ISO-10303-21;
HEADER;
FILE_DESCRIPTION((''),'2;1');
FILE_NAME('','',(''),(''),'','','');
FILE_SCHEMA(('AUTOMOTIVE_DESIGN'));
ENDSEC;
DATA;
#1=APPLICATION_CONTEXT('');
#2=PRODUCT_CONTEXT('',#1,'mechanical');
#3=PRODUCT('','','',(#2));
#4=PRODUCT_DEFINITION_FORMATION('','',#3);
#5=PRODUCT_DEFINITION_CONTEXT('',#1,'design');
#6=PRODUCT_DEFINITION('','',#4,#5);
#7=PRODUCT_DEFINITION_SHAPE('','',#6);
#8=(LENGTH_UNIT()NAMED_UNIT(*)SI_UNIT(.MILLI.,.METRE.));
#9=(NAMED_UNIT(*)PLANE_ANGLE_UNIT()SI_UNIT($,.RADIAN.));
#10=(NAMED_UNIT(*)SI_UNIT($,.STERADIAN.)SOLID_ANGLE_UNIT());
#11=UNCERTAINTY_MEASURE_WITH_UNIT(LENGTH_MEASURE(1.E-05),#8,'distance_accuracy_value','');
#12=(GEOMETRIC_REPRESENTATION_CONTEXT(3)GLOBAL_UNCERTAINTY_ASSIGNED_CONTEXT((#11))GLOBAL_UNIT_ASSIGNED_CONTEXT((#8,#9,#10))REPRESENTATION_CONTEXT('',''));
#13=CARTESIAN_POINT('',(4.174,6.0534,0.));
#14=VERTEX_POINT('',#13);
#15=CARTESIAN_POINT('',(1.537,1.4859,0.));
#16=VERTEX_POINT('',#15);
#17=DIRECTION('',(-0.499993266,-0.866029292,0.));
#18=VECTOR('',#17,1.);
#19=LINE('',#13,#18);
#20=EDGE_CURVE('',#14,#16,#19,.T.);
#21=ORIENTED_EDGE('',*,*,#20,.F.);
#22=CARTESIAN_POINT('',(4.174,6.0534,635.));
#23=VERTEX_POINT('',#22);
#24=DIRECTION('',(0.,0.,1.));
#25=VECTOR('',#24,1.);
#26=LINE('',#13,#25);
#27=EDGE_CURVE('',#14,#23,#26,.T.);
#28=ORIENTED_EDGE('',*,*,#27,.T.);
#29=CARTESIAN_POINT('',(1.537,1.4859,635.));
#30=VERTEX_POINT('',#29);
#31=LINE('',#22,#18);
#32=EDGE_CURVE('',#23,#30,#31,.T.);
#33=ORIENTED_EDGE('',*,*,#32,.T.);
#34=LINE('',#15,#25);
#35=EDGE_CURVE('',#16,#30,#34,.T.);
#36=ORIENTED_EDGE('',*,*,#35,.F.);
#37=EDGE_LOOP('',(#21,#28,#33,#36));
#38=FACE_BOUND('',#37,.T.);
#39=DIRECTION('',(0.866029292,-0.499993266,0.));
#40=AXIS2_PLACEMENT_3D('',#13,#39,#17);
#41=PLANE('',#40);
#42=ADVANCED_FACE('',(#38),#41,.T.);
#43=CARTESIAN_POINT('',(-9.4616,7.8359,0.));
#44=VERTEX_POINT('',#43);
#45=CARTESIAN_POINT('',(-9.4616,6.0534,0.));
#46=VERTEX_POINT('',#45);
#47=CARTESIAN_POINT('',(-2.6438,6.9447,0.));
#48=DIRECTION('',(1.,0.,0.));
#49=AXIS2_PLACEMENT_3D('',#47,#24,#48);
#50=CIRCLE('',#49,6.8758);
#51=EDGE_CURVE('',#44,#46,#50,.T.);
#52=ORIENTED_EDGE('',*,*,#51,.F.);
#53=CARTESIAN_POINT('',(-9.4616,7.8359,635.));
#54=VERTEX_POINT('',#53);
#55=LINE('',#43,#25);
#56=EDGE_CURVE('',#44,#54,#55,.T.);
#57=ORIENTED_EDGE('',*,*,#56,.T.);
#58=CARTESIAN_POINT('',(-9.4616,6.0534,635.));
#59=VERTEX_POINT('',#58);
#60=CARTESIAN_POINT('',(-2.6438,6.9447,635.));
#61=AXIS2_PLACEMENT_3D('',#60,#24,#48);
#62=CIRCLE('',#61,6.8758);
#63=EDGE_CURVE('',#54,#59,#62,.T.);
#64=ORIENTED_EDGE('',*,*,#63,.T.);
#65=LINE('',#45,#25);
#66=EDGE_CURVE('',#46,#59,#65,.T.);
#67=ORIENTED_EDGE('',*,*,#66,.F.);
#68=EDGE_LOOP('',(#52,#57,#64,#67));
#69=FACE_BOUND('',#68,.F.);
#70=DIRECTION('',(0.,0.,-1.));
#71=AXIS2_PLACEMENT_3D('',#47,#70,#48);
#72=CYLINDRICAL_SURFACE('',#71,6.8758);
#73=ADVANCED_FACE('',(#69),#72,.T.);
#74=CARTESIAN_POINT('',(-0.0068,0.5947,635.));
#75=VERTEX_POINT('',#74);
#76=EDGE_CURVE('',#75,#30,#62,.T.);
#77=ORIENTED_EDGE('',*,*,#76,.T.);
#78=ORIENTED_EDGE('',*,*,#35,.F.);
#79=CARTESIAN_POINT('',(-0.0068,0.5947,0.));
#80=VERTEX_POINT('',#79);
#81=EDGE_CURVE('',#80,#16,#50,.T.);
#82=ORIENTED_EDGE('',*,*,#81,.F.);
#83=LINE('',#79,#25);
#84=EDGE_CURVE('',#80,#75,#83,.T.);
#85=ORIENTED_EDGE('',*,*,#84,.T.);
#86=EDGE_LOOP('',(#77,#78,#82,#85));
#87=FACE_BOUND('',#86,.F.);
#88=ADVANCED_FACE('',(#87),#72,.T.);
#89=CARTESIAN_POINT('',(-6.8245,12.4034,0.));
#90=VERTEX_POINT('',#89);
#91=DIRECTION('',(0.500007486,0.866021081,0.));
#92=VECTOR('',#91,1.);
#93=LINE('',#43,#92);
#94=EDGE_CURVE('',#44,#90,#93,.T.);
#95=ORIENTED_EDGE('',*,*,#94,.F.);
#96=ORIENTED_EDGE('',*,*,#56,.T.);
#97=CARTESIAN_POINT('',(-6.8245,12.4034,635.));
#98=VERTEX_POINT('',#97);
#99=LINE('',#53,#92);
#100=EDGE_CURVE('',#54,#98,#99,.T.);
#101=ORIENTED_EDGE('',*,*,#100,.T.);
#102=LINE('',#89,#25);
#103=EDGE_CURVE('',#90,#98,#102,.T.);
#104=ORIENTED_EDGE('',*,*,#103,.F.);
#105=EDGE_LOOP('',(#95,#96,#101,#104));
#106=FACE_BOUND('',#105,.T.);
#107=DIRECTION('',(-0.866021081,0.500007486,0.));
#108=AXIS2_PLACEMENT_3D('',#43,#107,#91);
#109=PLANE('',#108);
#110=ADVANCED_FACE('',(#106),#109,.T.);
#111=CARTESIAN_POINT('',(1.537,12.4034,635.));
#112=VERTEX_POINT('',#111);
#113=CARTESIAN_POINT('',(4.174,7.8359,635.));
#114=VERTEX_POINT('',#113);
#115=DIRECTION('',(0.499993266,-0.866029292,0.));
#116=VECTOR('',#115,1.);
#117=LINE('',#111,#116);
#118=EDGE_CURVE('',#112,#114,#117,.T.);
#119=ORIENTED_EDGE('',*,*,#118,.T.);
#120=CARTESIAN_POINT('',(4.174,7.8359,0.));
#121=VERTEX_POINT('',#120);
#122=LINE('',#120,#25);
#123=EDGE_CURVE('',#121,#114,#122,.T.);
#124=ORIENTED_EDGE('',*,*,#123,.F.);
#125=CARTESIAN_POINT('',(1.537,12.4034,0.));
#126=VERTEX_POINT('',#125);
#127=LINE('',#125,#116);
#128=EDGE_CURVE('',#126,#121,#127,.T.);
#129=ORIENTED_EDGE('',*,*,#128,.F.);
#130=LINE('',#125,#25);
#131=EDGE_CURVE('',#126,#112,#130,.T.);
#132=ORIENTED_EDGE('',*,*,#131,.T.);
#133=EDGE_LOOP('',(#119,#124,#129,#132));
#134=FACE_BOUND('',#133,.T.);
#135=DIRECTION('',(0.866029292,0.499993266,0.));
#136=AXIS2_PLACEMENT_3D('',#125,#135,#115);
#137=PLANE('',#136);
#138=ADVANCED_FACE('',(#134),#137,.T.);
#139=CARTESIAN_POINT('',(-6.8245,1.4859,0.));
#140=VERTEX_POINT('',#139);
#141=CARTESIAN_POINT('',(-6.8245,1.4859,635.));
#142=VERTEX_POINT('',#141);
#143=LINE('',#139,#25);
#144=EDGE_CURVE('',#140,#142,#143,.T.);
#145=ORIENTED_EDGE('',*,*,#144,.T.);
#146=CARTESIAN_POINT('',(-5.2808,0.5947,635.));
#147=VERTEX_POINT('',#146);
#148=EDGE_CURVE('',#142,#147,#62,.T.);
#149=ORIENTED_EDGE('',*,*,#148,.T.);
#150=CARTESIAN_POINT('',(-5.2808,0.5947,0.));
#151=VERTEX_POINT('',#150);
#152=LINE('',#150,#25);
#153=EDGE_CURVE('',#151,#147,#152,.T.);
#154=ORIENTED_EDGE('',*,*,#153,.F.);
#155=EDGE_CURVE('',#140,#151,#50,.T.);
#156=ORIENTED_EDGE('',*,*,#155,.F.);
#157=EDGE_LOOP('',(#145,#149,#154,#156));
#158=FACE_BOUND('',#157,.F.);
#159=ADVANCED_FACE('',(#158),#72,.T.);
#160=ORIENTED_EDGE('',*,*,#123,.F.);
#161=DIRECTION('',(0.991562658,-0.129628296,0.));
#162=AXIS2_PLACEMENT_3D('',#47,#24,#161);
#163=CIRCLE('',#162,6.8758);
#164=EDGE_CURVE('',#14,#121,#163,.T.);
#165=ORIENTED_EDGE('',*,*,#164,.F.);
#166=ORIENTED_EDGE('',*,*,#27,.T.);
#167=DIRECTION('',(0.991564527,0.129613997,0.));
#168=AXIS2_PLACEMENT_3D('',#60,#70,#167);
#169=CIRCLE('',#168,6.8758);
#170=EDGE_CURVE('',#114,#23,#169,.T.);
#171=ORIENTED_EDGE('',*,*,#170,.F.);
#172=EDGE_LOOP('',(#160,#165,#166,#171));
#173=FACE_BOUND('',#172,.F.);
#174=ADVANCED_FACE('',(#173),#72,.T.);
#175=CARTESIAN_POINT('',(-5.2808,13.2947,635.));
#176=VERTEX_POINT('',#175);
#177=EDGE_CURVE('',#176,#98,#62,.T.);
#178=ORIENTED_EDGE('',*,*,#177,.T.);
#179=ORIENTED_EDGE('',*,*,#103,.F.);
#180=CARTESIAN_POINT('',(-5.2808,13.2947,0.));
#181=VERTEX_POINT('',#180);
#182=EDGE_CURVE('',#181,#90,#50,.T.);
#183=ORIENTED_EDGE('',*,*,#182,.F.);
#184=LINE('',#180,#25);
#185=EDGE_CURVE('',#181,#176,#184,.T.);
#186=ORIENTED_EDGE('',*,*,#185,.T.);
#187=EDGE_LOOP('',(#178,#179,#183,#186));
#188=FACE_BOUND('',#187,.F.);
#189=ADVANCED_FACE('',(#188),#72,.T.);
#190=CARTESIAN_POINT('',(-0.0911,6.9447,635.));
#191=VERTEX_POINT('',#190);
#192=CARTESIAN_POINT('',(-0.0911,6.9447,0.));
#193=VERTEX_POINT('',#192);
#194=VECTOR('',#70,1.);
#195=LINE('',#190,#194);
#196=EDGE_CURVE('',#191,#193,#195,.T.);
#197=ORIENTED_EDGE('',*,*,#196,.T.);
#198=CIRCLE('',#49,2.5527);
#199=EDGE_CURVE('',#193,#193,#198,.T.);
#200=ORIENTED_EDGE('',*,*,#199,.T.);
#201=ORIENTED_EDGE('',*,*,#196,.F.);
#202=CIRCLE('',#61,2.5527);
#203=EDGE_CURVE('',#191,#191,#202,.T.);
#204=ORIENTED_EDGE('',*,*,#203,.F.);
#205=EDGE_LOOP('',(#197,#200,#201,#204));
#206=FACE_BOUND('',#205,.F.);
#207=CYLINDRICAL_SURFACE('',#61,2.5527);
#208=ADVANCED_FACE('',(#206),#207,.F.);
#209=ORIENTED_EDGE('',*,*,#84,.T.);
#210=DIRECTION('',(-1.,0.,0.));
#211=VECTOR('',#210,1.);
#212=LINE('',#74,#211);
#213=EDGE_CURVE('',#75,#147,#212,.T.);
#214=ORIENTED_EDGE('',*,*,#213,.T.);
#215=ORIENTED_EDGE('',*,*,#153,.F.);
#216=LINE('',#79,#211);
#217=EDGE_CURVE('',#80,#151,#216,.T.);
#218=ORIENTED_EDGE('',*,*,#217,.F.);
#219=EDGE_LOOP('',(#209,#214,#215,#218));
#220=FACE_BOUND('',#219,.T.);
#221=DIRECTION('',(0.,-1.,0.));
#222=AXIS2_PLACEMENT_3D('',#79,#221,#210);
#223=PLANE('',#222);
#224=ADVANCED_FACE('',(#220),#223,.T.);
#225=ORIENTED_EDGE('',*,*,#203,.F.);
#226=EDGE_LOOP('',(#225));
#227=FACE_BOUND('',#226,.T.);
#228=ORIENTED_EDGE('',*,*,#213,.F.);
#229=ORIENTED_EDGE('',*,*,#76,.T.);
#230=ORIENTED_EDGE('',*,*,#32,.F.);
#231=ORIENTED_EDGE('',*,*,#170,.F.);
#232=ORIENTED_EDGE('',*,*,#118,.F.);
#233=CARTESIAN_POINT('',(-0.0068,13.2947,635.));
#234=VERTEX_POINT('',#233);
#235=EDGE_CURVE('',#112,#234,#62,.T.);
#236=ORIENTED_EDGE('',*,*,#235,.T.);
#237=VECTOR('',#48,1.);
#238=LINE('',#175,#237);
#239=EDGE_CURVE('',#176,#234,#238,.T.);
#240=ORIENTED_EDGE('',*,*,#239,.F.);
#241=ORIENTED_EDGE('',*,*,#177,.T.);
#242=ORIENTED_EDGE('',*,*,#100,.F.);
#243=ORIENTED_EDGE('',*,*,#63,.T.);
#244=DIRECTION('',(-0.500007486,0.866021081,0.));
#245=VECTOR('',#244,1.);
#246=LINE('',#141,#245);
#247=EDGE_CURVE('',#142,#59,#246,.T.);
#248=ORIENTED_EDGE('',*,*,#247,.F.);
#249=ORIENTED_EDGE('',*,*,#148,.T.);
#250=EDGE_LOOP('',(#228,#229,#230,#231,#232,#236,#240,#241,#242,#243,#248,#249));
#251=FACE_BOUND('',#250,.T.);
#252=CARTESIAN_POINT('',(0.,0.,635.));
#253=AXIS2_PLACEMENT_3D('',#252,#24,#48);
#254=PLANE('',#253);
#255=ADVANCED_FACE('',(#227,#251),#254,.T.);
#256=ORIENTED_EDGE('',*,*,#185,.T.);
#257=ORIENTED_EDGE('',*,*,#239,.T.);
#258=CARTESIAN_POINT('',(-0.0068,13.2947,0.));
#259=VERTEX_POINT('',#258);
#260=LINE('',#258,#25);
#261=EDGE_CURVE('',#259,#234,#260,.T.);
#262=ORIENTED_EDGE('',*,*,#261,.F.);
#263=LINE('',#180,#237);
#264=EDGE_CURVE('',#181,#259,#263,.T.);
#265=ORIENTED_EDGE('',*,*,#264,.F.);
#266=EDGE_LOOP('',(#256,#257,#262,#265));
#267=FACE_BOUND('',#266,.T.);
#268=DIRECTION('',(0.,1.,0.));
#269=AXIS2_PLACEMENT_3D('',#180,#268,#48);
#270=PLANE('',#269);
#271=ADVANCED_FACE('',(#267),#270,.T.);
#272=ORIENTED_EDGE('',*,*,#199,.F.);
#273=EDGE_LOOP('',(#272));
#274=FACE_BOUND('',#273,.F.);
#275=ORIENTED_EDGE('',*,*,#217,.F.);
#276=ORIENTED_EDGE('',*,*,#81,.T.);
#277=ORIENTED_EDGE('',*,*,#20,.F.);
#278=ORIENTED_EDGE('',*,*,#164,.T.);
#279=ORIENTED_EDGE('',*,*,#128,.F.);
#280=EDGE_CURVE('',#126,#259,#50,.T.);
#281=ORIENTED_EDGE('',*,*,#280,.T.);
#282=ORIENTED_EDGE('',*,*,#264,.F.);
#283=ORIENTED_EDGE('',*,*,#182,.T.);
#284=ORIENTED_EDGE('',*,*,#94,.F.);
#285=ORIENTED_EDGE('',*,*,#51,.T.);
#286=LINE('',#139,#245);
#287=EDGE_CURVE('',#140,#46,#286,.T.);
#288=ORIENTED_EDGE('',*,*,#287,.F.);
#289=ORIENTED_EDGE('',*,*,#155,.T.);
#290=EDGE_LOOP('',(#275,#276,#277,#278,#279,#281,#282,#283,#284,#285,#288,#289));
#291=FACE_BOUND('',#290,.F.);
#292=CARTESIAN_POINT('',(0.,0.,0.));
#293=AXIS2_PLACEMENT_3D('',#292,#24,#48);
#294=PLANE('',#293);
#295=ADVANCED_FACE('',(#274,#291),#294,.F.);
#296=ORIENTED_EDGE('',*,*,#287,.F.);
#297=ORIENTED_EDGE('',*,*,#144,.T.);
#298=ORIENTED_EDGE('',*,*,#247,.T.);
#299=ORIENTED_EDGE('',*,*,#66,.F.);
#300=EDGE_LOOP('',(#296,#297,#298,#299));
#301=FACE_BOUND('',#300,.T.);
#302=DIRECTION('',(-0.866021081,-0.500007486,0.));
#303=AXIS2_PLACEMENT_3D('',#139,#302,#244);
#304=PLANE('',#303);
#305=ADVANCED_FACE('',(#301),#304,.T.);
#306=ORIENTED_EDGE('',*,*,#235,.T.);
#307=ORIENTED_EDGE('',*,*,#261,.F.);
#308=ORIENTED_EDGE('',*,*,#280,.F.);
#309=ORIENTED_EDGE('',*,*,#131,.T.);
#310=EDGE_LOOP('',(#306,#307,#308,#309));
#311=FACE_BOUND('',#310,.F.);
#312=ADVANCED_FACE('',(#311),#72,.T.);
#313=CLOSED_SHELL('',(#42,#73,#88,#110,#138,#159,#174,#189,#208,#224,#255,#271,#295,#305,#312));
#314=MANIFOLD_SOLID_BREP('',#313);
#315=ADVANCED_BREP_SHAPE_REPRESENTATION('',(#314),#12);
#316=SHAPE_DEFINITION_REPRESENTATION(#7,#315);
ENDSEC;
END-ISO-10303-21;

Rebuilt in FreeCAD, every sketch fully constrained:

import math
import FreeCAD as App
import Part
import Sketcher

V = App.Vector
Q = App.Units.Quantity

doc = App.newDocument("Part")
body = doc.addObject("PartDesign::Body", "Body")

sketch1 = doc.addObject("Sketcher::SketchObject", "Sketch")
body.addObject(sketch1)
sketch1.AttachmentSupport = (doc.XY_Plane, [""])
sketch1.MapMode = "FlatFace"
sketch1.addGeometry(Part.ArcOfCircle(Part.Circle(V(-2.6, 6.9, 0), V(0, 0, 1), 6.9), math.radians(-7.45), math.radians(7.45)), False)
sketch1.addGeometry(Part.LineSegment(V(4.2, 7.8, 0), V(1.5, 12.4, 0)), False)
sketch1.addGeometry(Part.ArcOfCircle(Part.Circle(V(-2.6, 6.9, 0), V(0, 0, 1), 6.9), math.radians(52.55), math.radians(67.45)), False)
sketch1.addGeometry(Part.LineSegment(V(0, 13.3, 0), V(-5.3, 13.3, 0)), False)
sketch1.addGeometry(Part.ArcOfCircle(Part.Circle(V(-2.6, 6.9, 0), V(0, 0, 1), 6.9), math.radians(112.55), math.radians(127.45)), False)
sketch1.addGeometry(Part.LineSegment(V(-6.8, 12.4, 0), V(-9.5, 7.8, 0)), False)
sketch1.addGeometry(Part.ArcOfCircle(Part.Circle(V(-2.6, 6.9, 0), V(0, 0, 1), 6.9), math.radians(172.55), math.radians(187.45)), False)
sketch1.addGeometry(Part.LineSegment(V(-9.5, 6.1, 0), V(-6.8, 1.5, 0)), False)
sketch1.addGeometry(Part.ArcOfCircle(Part.Circle(V(-2.6, 6.9, 0), V(0, 0, 1), 6.9), math.radians(-127.45), math.radians(-112.55)), False)
sketch1.addGeometry(Part.LineSegment(V(-5.3, 0.6, 0), V(0, 0.6, 0)), False)
sketch1.addGeometry(Part.ArcOfCircle(Part.Circle(V(-2.6, 6.9, 0), V(0, 0, 1), 6.9), math.radians(-67.45), math.radians(-52.55)), False)
sketch1.addGeometry(Part.LineSegment(V(1.5, 1.5, 0), V(4.2, 6.1, 0)), False)
sketch1.addConstraint(Sketcher.Constraint("Coincident", 0, 2, 1, 1))
sketch1.addConstraint(Sketcher.Constraint("Coincident", 1, 2, 2, 1))
sketch1.addConstraint(Sketcher.Constraint("Coincident", 2, 2, 3, 1))
sketch1.addConstraint(Sketcher.Constraint("Coincident", 3, 2, 4, 1))
sketch1.addConstraint(Sketcher.Constraint("Coincident", 4, 2, 5, 1))
sketch1.addConstraint(Sketcher.Constraint("Coincident", 5, 2, 6, 1))
sketch1.addConstraint(Sketcher.Constraint("Coincident", 6, 2, 7, 1))
sketch1.addConstraint(Sketcher.Constraint("Coincident", 7, 2, 8, 1))
sketch1.addConstraint(Sketcher.Constraint("Coincident", 8, 2, 9, 1))
sketch1.addConstraint(Sketcher.Constraint("Coincident", 9, 2, 10, 1))
sketch1.addConstraint(Sketcher.Constraint("Coincident", 10, 2, 11, 1))
sketch1.addConstraint(Sketcher.Constraint("Coincident", 11, 2, 0, 1))
sketch1.addConstraint(Sketcher.Constraint("Horizontal", 3))
sketch1.addConstraint(Sketcher.Constraint("Horizontal", 9))
sketch1.addConstraint(Sketcher.Constraint("Coincident", 2, 3, 0, 3))
sketch1.addConstraint(Sketcher.Constraint("Coincident", 4, 3, 0, 3))
sketch1.addConstraint(Sketcher.Constraint("Coincident", 6, 3, 0, 3))
sketch1.addConstraint(Sketcher.Constraint("Coincident", 8, 3, 0, 3))
sketch1.addConstraint(Sketcher.Constraint("Coincident", 10, 3, 0, 3))
sketch1.addConstraint(Sketcher.Constraint("Equal", 0, 2))
sketch1.addConstraint(Sketcher.Constraint("Equal", 2, 4))
sketch1.addConstraint(Sketcher.Constraint("Equal", 4, 6))
sketch1.addConstraint(Sketcher.Constraint("Equal", 6, 8))
sketch1.addConstraint(Sketcher.Constraint("Equal", 8, 10))
sketch1.addConstraint(Sketcher.Constraint("Parallel", 1, 7))
sketch1.addConstraint(Sketcher.Constraint("Parallel", 5, 11))
sketch1.addConstraint(Sketcher.Constraint("Horizontal", 1, 2, 4, 2))
sketch1.addConstraint(Sketcher.Constraint("Horizontal", 0, 2, 5, 2))
sketch1.addConstraint(Sketcher.Constraint("Horizontal", 7, 2, 10, 2))
sketch1.addConstraint(Sketcher.Constraint("Vertical", 5, 2, 6, 2))
sketch1.addConstraint(Sketcher.Constraint("Vertical", 3, 2, 8, 2))
sketch1.addConstraint(Sketcher.Constraint("Radius", 0, Q("0.2707 in")))
sketch1.addConstraint(Sketcher.Constraint("Angle", 1, Q("119.9996 deg")))
sketch1.addConstraint(Sketcher.Constraint("DistanceY", 0, 3, 2, 2, Q("0.25 in")))
sketch1.addConstraint(Sketcher.Constraint("DistanceY", 10, 2, 0, 2, Q("0.25 in")))
sketch1.addConstraint(Sketcher.Constraint("DistanceY", -1, 1, 0, 2, Q("0.3085 in")))
sketch1.addConstraint(Sketcher.Constraint("DistanceX", -1, 1, 1, 2, Q("0.0605 in")))
pad1 = doc.addObject("PartDesign::Pad", "Pad")
body.addObject(pad1)
pad1.Profile = sketch1
pad1.Length = Q("25 in")

sketch2 = doc.addObject("Sketcher::SketchObject", "Sketch001")
body.addObject(sketch2)
sketch2.AttachmentSupport = (doc.XY_Plane, [""])
sketch2.MapMode = "FlatFace"
sketch2.AttachmentOffset = App.Placement(V(0, 0, 25 * 25.4), App.Rotation())
sketch2.addGeometry(Part.Circle(V(-2.6, 6.9, 0), V(0, 0, 1), 2.6), False)
sketch2.addConstraint(Sketcher.Constraint("Diameter", 0, Q("0.201 in")))
sketch2.addConstraint(Sketcher.Constraint("DistanceX", 0, 3, -1, 1, Q("2.6438 mm")))
sketch2.addConstraint(Sketcher.Constraint("DistanceY", -1, 1, 0, 3, Q("6.9447 mm")))
pocket1 = doc.addObject("PartDesign::Pocket", "Pocket")
body.addObject(pocket1)
pocket1.Profile = sketch2
pocket1.Length = Q("25 in")

doc.recompute()
